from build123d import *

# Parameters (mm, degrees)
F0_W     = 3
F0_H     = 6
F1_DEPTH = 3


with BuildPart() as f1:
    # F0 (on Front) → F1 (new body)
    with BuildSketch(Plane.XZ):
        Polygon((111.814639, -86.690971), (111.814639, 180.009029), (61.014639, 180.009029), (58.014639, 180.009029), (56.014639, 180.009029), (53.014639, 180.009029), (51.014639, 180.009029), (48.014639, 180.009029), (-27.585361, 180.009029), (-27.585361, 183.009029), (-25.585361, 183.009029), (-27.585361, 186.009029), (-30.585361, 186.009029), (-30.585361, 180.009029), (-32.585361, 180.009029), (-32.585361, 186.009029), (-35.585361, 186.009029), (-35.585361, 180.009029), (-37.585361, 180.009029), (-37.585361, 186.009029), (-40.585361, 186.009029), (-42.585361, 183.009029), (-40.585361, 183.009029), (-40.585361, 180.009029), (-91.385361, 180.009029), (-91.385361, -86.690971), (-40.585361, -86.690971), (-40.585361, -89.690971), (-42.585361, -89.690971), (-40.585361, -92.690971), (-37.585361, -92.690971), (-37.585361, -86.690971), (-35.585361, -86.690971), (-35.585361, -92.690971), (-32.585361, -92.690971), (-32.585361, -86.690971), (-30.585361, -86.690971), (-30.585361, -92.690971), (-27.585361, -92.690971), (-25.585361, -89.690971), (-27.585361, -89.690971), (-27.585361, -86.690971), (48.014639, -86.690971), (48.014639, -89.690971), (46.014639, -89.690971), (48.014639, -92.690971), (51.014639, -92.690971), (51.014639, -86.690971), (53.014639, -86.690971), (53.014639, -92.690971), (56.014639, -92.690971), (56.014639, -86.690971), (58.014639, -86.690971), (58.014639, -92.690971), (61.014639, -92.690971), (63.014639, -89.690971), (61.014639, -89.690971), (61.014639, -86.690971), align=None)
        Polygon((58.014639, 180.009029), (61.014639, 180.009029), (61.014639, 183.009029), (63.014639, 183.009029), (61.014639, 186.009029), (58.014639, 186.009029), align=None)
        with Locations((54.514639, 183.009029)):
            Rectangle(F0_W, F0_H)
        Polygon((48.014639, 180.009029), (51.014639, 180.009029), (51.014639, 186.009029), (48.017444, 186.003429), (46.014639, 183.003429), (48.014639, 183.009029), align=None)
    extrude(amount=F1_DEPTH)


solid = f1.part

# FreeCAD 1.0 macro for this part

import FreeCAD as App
import Part
import Sketcher

doc = App.newDocument("Part")
body = doc.addObject("PartDesign::Body", "Body")

# Sketch on XZ plane
sketch1 = body.newObject("Sketcher::SketchObject", "Sketch")
sketch1.AttachmentSupport = (doc.getObject("XZ_Plane"), [""])
sketch1.MapMode = "FlatFace"
sketch1.addGeometry([
    Part.LineSegment(App.Vector(111.8, -86.7, 0), App.Vector(111.8, 180, 0)),  # 0
    Part.LineSegment(App.Vector(111.8, 180, 0), App.Vector(61, 180, 0)),  # 1
    Part.LineSegment(App.Vector(61, 180, 0), App.Vector(61, 183, 0)),  # 2
    Part.LineSegment(App.Vector(61, 183, 0), App.Vector(63, 183, 0)),  # 3
    Part.LineSegment(App.Vector(63, 183, 0), App.Vector(61, 186, 0)),  # 4
    Part.LineSegment(App.Vector(61, 186, 0), App.Vector(58, 186, 0)),  # 5
    Part.LineSegment(App.Vector(58, 186, 0), App.Vector(58, 180, 0)),  # 6
    Part.LineSegment(App.Vector(58, 180, 0), App.Vector(56, 180, 0)),  # 7
    Part.LineSegment(App.Vector(56, 180, 0), App.Vector(56, 186, 0)),  # 8
    Part.LineSegment(App.Vector(56, 186, 0), App.Vector(53, 186, 0)),  # 9
    Part.LineSegment(App.Vector(53, 186, 0), App.Vector(53, 180, 0)),  # 10
    Part.LineSegment(App.Vector(53, 180, 0), App.Vector(51, 180, 0)),  # 11
    Part.LineSegment(App.Vector(51, 180, 0), App.Vector(51, 186, 0)),  # 12
    Part.LineSegment(App.Vector(51, 186, 0), App.Vector(48, 186, 0)),  # 13
    Part.LineSegment(App.Vector(48, 186, 0), App.Vector(46, 183, 0)),  # 14
    Part.LineSegment(App.Vector(46, 183, 0), App.Vector(48, 183, 0)),  # 15
    Part.LineSegment(App.Vector(48, 183, 0), App.Vector(48, 180, 0)),  # 16
    Part.LineSegment(App.Vector(48, 180, 0), App.Vector(-27.6, 180, 0)),  # 17
    Part.LineSegment(App.Vector(-27.6, 180, 0), App.Vector(-27.6, 183, 0)),  # 18
    Part.LineSegment(App.Vector(-27.6, 183, 0), App.Vector(-25.6, 183, 0)),  # 19
    Part.LineSegment(App.Vector(-25.6, 183, 0), App.Vector(-27.6, 186, 0)),  # 20
    Part.LineSegment(App.Vector(-27.6, 186, 0), App.Vector(-30.6, 186, 0)),  # 21
    Part.LineSegment(App.Vector(-30.6, 186, 0), App.Vector(-30.6, 180, 0)),  # 22
    Part.LineSegment(App.Vector(-30.6, 180, 0), App.Vector(-32.6, 180, 0)),  # 23
    Part.LineSegment(App.Vector(-32.6, 180, 0), App.Vector(-32.6, 186, 0)),  # 24
    Part.LineSegment(App.Vector(-32.6, 186, 0), App.Vector(-35.6, 186, 0)),  # 25
    Part.LineSegment(App.Vector(-35.6, 186, 0), App.Vector(-35.6, 180, 0)),  # 26
    Part.LineSegment(App.Vector(-35.6, 180, 0), App.Vector(-37.6, 180, 0)),  # 27
    Part.LineSegment(App.Vector(-37.6, 180, 0), App.Vector(-37.6, 186, 0)),  # 28
    Part.LineSegment(App.Vector(-37.6, 186, 0), App.Vector(-40.6, 186, 0)),  # 29
    Part.LineSegment(App.Vector(-40.6, 186, 0), App.Vector(-42.6, 183, 0)),  # 30
    Part.LineSegment(App.Vector(-42.6, 183, 0), App.Vector(-40.6, 183, 0)),  # 31
    Part.LineSegment(App.Vector(-40.6, 183, 0), App.Vector(-40.6, 180, 0)),  # 32
    Part.LineSegment(App.Vector(-40.6, 180, 0), App.Vector(-91.4, 180, 0)),  # 33
    Part.LineSegment(App.Vector(-91.4, 180, 0), App.Vector(-91.4, -86.7, 0)),  # 34
    Part.LineSegment(App.Vector(-91.4, -86.7, 0), App.Vector(-40.6, -86.7, 0)),  # 35
    Part.LineSegment(App.Vector(-40.6, -86.7, 0), App.Vector(-40.6, -89.7, 0)),  # 36
    Part.LineSegment(App.Vector(-40.6, -89.7, 0), App.Vector(-42.6, -89.7, 0)),  # 37
    Part.LineSegment(App.Vector(-42.6, -89.7, 0), App.Vector(-40.6, -92.7, 0)),  # 38
    Part.LineSegment(App.Vector(-40.6, -92.7, 0), App.Vector(-37.6, -92.7, 0)),  # 39
    Part.LineSegment(App.Vector(-37.6, -92.7, 0), App.Vector(-37.6, -86.7, 0)),  # 40
    Part.LineSegment(App.Vector(-37.6, -86.7, 0), App.Vector(-35.6, -86.7, 0)),  # 41
    Part.LineSegment(App.Vector(-35.6, -86.7, 0), App.Vector(-35.6, -92.7, 0)),  # 42
    Part.LineSegment(App.Vector(-35.6, -92.7, 0), App.Vector(-32.6, -92.7, 0)),  # 43
    Part.LineSegment(App.Vector(-32.6, -92.7, 0), App.Vector(-32.6, -86.7, 0)),  # 44
    Part.LineSegment(App.Vector(-32.6, -86.7, 0), App.Vector(-30.6, -86.7, 0)),  # 45
    Part.LineSegment(App.Vector(-30.6, -86.7, 0), App.Vector(-30.6, -92.7, 0)),  # 46
    Part.LineSegment(App.Vector(-30.6, -92.7, 0), App.Vector(-27.6, -92.7, 0)),  # 47
    Part.LineSegment(App.Vector(-27.6, -92.7, 0), App.Vector(-25.6, -89.7, 0)),  # 48
    Part.LineSegment(App.Vector(-25.6, -89.7, 0), App.Vector(-27.6, -89.7, 0)),  # 49
    Part.LineSegment(App.Vector(-27.6, -89.7, 0), App.Vector(-27.6, -86.7, 0)),  # 50
    Part.LineSegment(App.Vector(-27.6, -86.7, 0), App.Vector(48, -86.7, 0)),  # 51
    Part.LineSegment(App.Vector(48, -86.7, 0), App.Vector(48, -89.7, 0)),  # 52
    Part.LineSegment(App.Vector(48, -89.7, 0), App.Vector(46, -89.7, 0)),  # 53
    Part.LineSegment(App.Vector(46, -89.7, 0), App.Vector(48, -92.7, 0)),  # 54
    Part.LineSegment(App.Vector(48, -92.7, 0), App.Vector(51, -92.7, 0)),  # 55
    Part.LineSegment(App.Vector(51, -92.7, 0), App.Vector(51, -86.7, 0)),  # 56
    Part.LineSegment(App.Vector(51, -86.7, 0), App.Vector(53, -86.7, 0)),  # 57
    Part.LineSegment(App.Vector(53, -86.7, 0), App.Vector(53, -92.7, 0)),  # 58
    Part.LineSegment(App.Vector(53, -92.7, 0), App.Vector(56, -92.7, 0)),  # 59
    Part.LineSegment(App.Vector(56, -92.7, 0), App.Vector(56, -86.7, 0)),  # 60
    Part.LineSegment(App.Vector(56, -86.7, 0), App.Vector(58, -86.7, 0)),  # 61
    Part.LineSegment(App.Vector(58, -86.7, 0), App.Vector(58, -92.7, 0)),  # 62
    Part.LineSegment(App.Vector(58, -92.7, 0), App.Vector(61, -92.7, 0)),  # 63
    Part.LineSegment(App.Vector(61, -92.7, 0), App.Vector(63, -89.7, 0)),  # 64
    Part.LineSegment(App.Vector(63, -89.7, 0), App.Vector(61, -89.7, 0)),  # 65
    Part.LineSegment(App.Vector(61, -89.7, 0), App.Vector(61, -86.7, 0)),  # 66
    Part.LineSegment(App.Vector(61, -86.7, 0), App.Vector(111.8, -86.7, 0)),  # 67
], False)
sketch1.addConstraint([
    Sketcher.Constraint("Coincident", 0, 2, 1, 1),
    Sketcher.Constraint("Coincident", 1, 2, 2, 1),
    Sketcher.Constraint("Coincident", 2, 2, 3, 1),
    Sketcher.Constraint("Coincident", 3, 2, 4, 1),
    Sketcher.Constraint("Coincident", 4, 2, 5, 1),
    Sketcher.Constraint("Coincident", 5, 2, 6, 1),
    Sketcher.Constraint("Coincident", 6, 2, 7, 1),
    Sketcher.Constraint("Coincident", 7, 2, 8, 1),
    Sketcher.Constraint("Coincident", 8, 2, 9, 1),
    Sketcher.Constraint("Coincident", 9, 2, 10, 1),
    Sketcher.Constraint("Coincident", 10, 2, 11, 1),
    Sketcher.Constraint("Coincident", 11, 2, 12, 1),
    Sketcher.Constraint("Coincident", 12, 2, 13, 1),
    Sketcher.Constraint("Coincident", 13, 2, 14, 1),
    Sketcher.Constraint("Coincident", 14, 2, 15, 1),
    Sketcher.Constraint("Coincident", 15, 2, 16, 1),
    Sketcher.Constraint("Coincident", 16, 2, 17, 1),
    Sketcher.Constraint("Coincident", 17, 2, 18, 1),
    Sketcher.Constraint("Coincident", 18, 2, 19, 1),
    Sketcher.Constraint("Coincident", 19, 2, 20, 1),
    Sketcher.Constraint("Coincident", 20, 2, 21, 1),
    Sketcher.Constraint("Coincident", 21, 2, 22, 1),
    Sketcher.Constraint("Coincident", 22, 2, 23, 1),
    Sketcher.Constraint("Coincident", 23, 2, 24, 1),
    Sketcher.Constraint("Coincident", 24, 2, 25, 1),
    Sketcher.Constraint("Coincident", 25, 2, 26, 1),
    Sketcher.Constraint("Coincident", 26, 2, 27, 1),
    Sketcher.Constraint("Coincident", 27, 2, 28, 1),
    Sketcher.Constraint("Coincident", 28, 2, 29, 1),
    Sketcher.Constraint("Coincident", 29, 2, 30, 1),
    Sketcher.Constraint("Coincident", 30, 2, 31, 1),
    Sketcher.Constraint("Coincident", 31, 2, 32, 1),
    Sketcher.Constraint("Coincident", 32, 2, 33, 1),
    Sketcher.Constraint("Coincident", 33, 2, 34, 1),
    Sketcher.Constraint("Coincident", 34, 2, 35, 1),
    Sketcher.Constraint("Coincident", 35, 2, 36, 1),
    Sketcher.Constraint("Coincident", 36, 2, 37, 1),
    Sketcher.Constraint("Coincident", 37, 2, 38, 1),
    Sketcher.Constraint("Coincident", 38, 2, 39, 1),
    Sketcher.Constraint("Coincident", 39, 2, 40, 1),
    Sketcher.Constraint("Coincident", 40, 2, 41, 1),
    Sketcher.Constraint("Coincident", 41, 2, 42, 1),
    Sketcher.Constraint("Coincident", 42, 2, 43, 1),
    Sketcher.Constraint("Coincident", 43, 2, 44, 1),
    Sketcher.Constraint("Coincident", 44, 2, 45, 1),
    Sketcher.Constraint("Coincident", 45, 2, 46, 1),
    Sketcher.Constraint("Coincident", 46, 2, 47, 1),
    Sketcher.Constraint("Coincident", 47, 2, 48, 1),
    Sketcher.Constraint("Coincident", 48, 2, 49, 1),
    Sketcher.Constraint("Coincident", 49, 2, 50, 1),
    Sketcher.Constraint("Coincident", 50, 2, 51, 1),
    Sketcher.Constraint("Coincident", 51, 2, 52, 1),
    Sketcher.Constraint("Coincident", 52, 2, 53, 1),
    Sketcher.Constraint("Coincident", 53, 2, 54, 1),
    Sketcher.Constraint("Coincident", 54, 2, 55, 1),
    Sketcher.Constraint("Coincident", 55, 2, 56, 1),
    Sketcher.Constraint("Coincident", 56, 2, 57, 1),
    Sketcher.Constraint("Coincident", 57, 2, 58, 1),
    Sketcher.Constraint("Coincident", 58, 2, 59, 1),
    Sketcher.Constraint("Coincident", 59, 2, 60, 1),
    Sketcher.Constraint("Coincident", 60, 2, 61, 1),
    Sketcher.Constraint("Coincident", 61, 2, 62, 1),
    Sketcher.Constraint("Coincident", 62, 2, 63, 1),
    Sketcher.Constraint("Coincident", 63, 2, 64, 1),
    Sketcher.Constraint("Coincident", 64, 2, 65, 1),
    Sketcher.Constraint("Coincident", 65, 2, 66, 1),
    Sketcher.Constraint("Coincident", 66, 2, 67, 1),
    Sketcher.Constraint("Coincident", 67, 2, 0, 1),
    Sketcher.Constraint("Vertical", 0),
    Sketcher.Constraint("Horizontal", 1),
    Sketcher.Constraint("Vertical", 2),
    Sketcher.Constraint("Horizontal", 3),
    Sketcher.Constraint("Horizontal", 5),
    Sketcher.Constraint("Vertical", 6),
    Sketcher.Constraint("Horizontal", 7),
    Sketcher.Constraint("Vertical", 8),
    Sketcher.Constraint("Horizontal", 9),
    Sketcher.Constraint("Vertical", 10),
    Sketcher.Constraint("Horizontal", 11),
    Sketcher.Constraint("Vertical", 12),
    Sketcher.Constraint("Vertical", 16),
    Sketcher.Constraint("Horizontal", 17),
    Sketcher.Constraint("Vertical", 18),
    Sketcher.Constraint("Horizontal", 19),
    Sketcher.Constraint("Horizontal", 21),
    Sketcher.Constraint("Vertical", 22),
    Sketcher.Constraint("Horizontal", 23),
    Sketcher.Constraint("Vertical", 24),
    Sketcher.Constraint("Horizontal", 25),
    Sketcher.Constraint("Vertical", 26),
    Sketcher.Constraint("Horizontal", 27),
    Sketcher.Constraint("Vertical", 28),
    Sketcher.Constraint("Horizontal", 29),
    Sketcher.Constraint("Horizontal", 31),
    Sketcher.Constraint("Vertical", 32),
    Sketcher.Constraint("Horizontal", 33),
    Sketcher.Constraint("Vertical", 34),
    Sketcher.Constraint("Horizontal", 35),
    Sketcher.Constraint("Vertical", 36),
    Sketcher.Constraint("Horizontal", 37),
    Sketcher.Constraint("Horizontal", 39),
    Sketcher.Constraint("Vertical", 40),
    Sketcher.Constraint("Horizontal", 41),
    Sketcher.Constraint("Vertical", 42),
    Sketcher.Constraint("Horizontal", 43),
    Sketcher.Constraint("Vertical", 44),
    Sketcher.Constraint("Horizontal", 45),
    Sketcher.Constraint("Vertical", 46),
    Sketcher.Constraint("Horizontal", 47),
    Sketcher.Constraint("Horizontal", 49),
    Sketcher.Constraint("Vertical", 50),
    Sketcher.Constraint("Horizontal", 51),
    Sketcher.Constraint("Vertical", 52),
    Sketcher.Constraint("Horizontal", 53),
    Sketcher.Constraint("Horizontal", 55),
    Sketcher.Constraint("Vertical", 56),
    Sketcher.Constraint("Horizontal", 57),
    Sketcher.Constraint("Vertical", 58),
    Sketcher.Constraint("Horizontal", 59),
    Sketcher.Constraint("Vertical", 60),
    Sketcher.Constraint("Horizontal", 61),
    Sketcher.Constraint("Vertical", 62),
    Sketcher.Constraint("Horizontal", 63),
    Sketcher.Constraint("Horizontal", 65),
    Sketcher.Constraint("Vertical", 66),
    Sketcher.Constraint("Horizontal", 67),
    Sketcher.Constraint("Parallel", 4, 20),
    Sketcher.Constraint("Parallel", 20, 38),
    Sketcher.Constraint("Parallel", 30, 48),
    Sketcher.Constraint("Parallel", 38, 54),
    Sketcher.Constraint("Parallel", 48, 64),
    Sketcher.Constraint("Horizontal", 1, 2, 6, 2),
    Sketcher.Constraint("Horizontal", 5, 2, 8, 2),
    Sketcher.Constraint("Horizontal", 7, 2, 10, 2),
    Sketcher.Constraint("Horizontal", 9, 2, 12, 2),
    Sketcher.Constraint("Horizontal", 3, 2, 15, 2),
    Sketcher.Constraint("Horizontal", 11, 2, 16, 2),
    Sketcher.Constraint("Horizontal", 15, 2, 18, 2),
    Sketcher.Constraint("Horizontal", 12, 2, 20, 2),
    Sketcher.Constraint("Horizontal", 17, 2, 22, 2),
    Sketcher.Constraint("Horizontal", 21, 2, 24, 2),
    Sketcher.Constraint("Horizontal", 23, 2, 26, 2),
    Sketcher.Constraint("Horizontal", 25, 2, 28, 2),
    Sketcher.Constraint("Horizontal", 19, 2, 30, 2),
    Sketcher.Constraint("Horizontal", 27, 2, 32, 2),
    Sketcher.Constraint("Horizontal", 35, 2, 40, 2),
    Sketcher.Constraint("Horizontal", 39, 2, 42, 2),
    Sketcher.Constraint("Horizontal", 41, 2, 44, 2),
    Sketcher.Constraint("Horizontal", 43, 2, 46, 2),
    Sketcher.Constraint("Horizontal", 37, 2, 48, 2),
    Sketcher.Constraint("Horizontal", 45, 2, 50, 2),
    Sketcher.Constraint("Horizontal", 49, 2, 52, 2),
    Sketcher.Constraint("Horizontal", 47, 2, 54, 2),
    Sketcher.Constraint("Horizontal", 51, 2, 56, 2),
    Sketcher.Constraint("Horizontal", 55, 2, 58, 2),
    Sketcher.Constraint("Horizontal", 57, 2, 60, 2),
    Sketcher.Constraint("Horizontal", 59, 2, 62, 2),
    Sketcher.Constraint("Horizontal", 53, 2, 64, 2),
    Sketcher.Constraint("Horizontal", 61, 2, 66, 2),
    Sketcher.Constraint("Vertical", 2, 2, 4, 2),
    Sketcher.Constraint("Vertical", 18, 2, 20, 2),
    Sketcher.Constraint("Vertical", 29, 2, 31, 2),
    Sketcher.Constraint("Vertical", 32, 2, 35, 2),
    Sketcher.Constraint("Vertical", 30, 2, 37, 2),
    Sketcher.Constraint("Vertical", 36, 2, 38, 2),
    Sketcher.Constraint("Vertical", 28, 2, 39, 2),
    Sketcher.Constraint("Vertical", 26, 2, 41, 2),
    Sketcher.Constraint("Vertical", 24, 2, 43, 2),
    Sketcher.Constraint("Vertical", 22, 2, 45, 2),
    Sketcher.Constraint("Vertical", 20, 2, 47, 2),
    Sketcher.Constraint("Vertical", 19, 2, 48, 2),
    Sketcher.Constraint("Vertical", 47, 2, 49, 2),
    Sketcher.Constraint("Vertical", 16, 2, 51, 2),
    Sketcher.Constraint("Vertical", 14, 2, 53, 2),
    Sketcher.Constraint("Vertical", 52, 2, 54, 2),
    Sketcher.Constraint("Vertical", 12, 2, 55, 2),
    Sketcher.Constraint("Vertical", 10, 2, 57, 2),
    Sketcher.Constraint("Vertical", 8, 2, 59, 2),
    Sketcher.Constraint("Vertical", 6, 2, 61, 2),
    Sketcher.Constraint("Vertical", 4, 2, 63, 2),
    Sketcher.Constraint("Vertical", 63, 2, 65, 2),
    Sketcher.Constraint("Equal", 3, 7),
    Sketcher.Constraint("Equal", 5, 9),
    Sketcher.Constraint("Equal", 7, 11),
    Sketcher.Constraint("Equal", 9, 21),
    Sketcher.Constraint("Equal", 19, 23),
    Sketcher.Constraint("Equal", 21, 25),
    Sketcher.Constraint("Equal", 23, 27),
    Sketcher.Constraint("Equal", 25, 29),
    Sketcher.Constraint("Equal", 1, 33),
    Sketcher.Constraint("Equal", 47, 55),
    Sketcher.Constraint("Equal", 63, 2),
    Sketcher.Constraint("Equal", 32, 36),
    Sketcher.Constraint("DistanceX", 3, 1, 3, 2, 2.0),
    Sketcher.Constraint("DistanceX", 5, 2, 5, 1, 3.0),
    Sketcher.Constraint("DistanceY", 6, 2, 6, 1, 6.0),
    Sketcher.Constraint("DistanceX", 1, 2, 1, 1, 50.8),
    Sketcher.Constraint("DistanceX", 17, 2, 17, 1, 75.6),
    Sketcher.Constraint("DistanceY", 0, 1, 0, 2, 266.7),
    Sketcher.Constraint("Distance", 13, 2.9972),
    Sketcher.Constraint("DistanceX", -1, 1, 0, 2, 111.814639),
    Sketcher.Constraint("DistanceY", -1, 1, 0, 2, 180.009029),
    Sketcher.Constraint("DistanceY", -1, 1, 13, 2, 186.003429),
    Sketcher.Constraint("DistanceY", -1, 1, 14, 2, 183.003429),
])
pad1 = body.newObject("PartDesign::Pad", "Pad")
pad1.Profile = sketch1
pad1.Length = 3

doc.recompute()
